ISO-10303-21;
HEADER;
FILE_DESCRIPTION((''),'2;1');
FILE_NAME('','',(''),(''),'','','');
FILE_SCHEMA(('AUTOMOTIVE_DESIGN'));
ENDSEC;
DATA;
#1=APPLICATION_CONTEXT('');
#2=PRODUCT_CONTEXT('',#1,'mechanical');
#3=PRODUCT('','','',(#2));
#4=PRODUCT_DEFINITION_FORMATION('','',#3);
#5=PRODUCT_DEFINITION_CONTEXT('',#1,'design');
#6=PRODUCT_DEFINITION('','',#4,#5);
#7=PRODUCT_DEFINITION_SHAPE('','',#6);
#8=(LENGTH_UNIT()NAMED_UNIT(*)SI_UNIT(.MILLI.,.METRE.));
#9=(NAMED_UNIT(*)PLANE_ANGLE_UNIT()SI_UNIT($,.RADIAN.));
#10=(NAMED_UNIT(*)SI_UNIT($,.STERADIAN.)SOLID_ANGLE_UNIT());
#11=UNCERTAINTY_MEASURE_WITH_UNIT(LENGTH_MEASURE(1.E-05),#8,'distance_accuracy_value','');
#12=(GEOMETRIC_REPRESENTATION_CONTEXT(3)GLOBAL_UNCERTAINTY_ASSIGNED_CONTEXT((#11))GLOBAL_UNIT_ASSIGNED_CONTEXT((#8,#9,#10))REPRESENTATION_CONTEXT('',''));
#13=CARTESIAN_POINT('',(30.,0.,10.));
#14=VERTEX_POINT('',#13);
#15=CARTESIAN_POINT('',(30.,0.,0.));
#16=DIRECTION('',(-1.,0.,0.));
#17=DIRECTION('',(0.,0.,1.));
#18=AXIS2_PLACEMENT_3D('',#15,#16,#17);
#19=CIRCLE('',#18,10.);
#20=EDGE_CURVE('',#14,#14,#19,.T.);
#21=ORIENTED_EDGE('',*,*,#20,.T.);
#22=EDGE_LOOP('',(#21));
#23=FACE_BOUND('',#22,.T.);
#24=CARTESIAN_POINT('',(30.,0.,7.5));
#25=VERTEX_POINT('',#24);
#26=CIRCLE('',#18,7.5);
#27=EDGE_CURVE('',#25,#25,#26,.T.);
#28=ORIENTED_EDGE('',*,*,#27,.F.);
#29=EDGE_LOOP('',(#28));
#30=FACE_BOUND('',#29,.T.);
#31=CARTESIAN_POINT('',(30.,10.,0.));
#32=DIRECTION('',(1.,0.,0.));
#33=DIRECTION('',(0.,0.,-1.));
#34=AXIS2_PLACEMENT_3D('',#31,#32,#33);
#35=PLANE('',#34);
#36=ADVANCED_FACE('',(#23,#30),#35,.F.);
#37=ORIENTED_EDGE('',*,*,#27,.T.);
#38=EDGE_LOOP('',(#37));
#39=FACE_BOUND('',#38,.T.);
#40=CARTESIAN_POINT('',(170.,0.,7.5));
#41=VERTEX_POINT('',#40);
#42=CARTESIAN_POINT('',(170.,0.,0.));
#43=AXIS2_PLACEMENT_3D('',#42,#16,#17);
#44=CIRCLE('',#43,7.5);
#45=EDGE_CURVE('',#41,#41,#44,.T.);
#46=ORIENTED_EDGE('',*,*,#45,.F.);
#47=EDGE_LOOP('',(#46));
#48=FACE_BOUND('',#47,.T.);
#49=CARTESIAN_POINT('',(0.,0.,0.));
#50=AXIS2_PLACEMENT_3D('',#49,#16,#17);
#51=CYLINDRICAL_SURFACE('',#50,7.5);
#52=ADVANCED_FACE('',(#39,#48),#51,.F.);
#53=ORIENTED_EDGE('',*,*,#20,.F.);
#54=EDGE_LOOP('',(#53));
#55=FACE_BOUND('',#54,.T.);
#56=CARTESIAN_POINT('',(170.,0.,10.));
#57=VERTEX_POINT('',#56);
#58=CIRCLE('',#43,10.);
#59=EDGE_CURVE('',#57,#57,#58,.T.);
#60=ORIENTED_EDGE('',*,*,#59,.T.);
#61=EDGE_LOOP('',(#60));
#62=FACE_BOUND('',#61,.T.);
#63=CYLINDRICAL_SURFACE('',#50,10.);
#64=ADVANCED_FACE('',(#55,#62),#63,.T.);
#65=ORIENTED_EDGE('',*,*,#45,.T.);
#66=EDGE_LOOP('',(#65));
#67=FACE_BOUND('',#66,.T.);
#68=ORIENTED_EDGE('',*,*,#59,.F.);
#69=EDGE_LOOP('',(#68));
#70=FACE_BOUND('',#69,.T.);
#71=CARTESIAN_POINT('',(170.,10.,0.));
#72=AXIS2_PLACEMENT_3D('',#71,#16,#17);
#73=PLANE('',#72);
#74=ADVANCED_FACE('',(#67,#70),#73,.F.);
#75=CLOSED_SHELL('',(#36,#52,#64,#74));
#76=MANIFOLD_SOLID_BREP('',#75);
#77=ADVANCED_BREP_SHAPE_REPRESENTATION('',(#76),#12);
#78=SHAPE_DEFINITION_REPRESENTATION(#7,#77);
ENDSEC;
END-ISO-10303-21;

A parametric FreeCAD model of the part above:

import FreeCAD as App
import Part
import Sketcher

V = App.Vector
Q = App.Units.Quantity

doc = App.newDocument("Part")
params = doc.addObject("Spreadsheet::Sheet", "Params")
for row, (alias, value) in enumerate([
    ("sketch1_width", "140 mm"),
    ("sketch1_height", "2.5 mm"),
    ("revolution_angle", "360 deg"),
], start=1):
    params.set(f"A{row}", alias)
    params.set(f"B{row}", "=" + value)
    params.setAlias(f"B{row}", alias)

body = doc.addObject("PartDesign::Body", "Body")

# Sketch on XY plane
sketch1 = body.newObject("Sketcher::SketchObject", "Sketch")
sketch1.AttachmentSupport = (doc.getObject("XY_Plane"), [""])
sketch1.MapMode = "FlatFace"
sketch1.addGeometry(Part.LineSegment(V(30, 10, 0), V(30, 7.5, 0)), False)
sketch1.addGeometry(Part.LineSegment(V(30, 7.5, 0), V(170, 7.5, 0)), False)
sketch1.addGeometry(Part.LineSegment(V(170, 7.5, 0), V(170, 10, 0)), False)
sketch1.addGeometry(Part.LineSegment(V(170, 10, 0), V(30, 10, 0)), False)
sketch1.addConstraint(Sketcher.Constraint("Coincident", 0, 2, 1, 1))
sketch1.addConstraint(Sketcher.Constraint("Coincident", 1, 2, 2, 1))
sketch1.addConstraint(Sketcher.Constraint("Coincident", 2, 2, 3, 1))
sketch1.addConstraint(Sketcher.Constraint("Coincident", 3, 2, 0, 1))
sketch1.addConstraint(Sketcher.Constraint("Vertical", 0))
sketch1.addConstraint(Sketcher.Constraint("Horizontal", 1))
sketch1.addConstraint(Sketcher.Constraint("Vertical", 2))
sketch1.addConstraint(Sketcher.Constraint("Horizontal", 3))
sketch1.addConstraint(Sketcher.Constraint("DistanceX", 1, 1, 1, 2, Q("140 mm")))
sketch1.addConstraint(Sketcher.Constraint("DistanceY", 0, 2, 0, 1, Q("2.5 mm")))
sketch1.addConstraint(Sketcher.Constraint("DistanceX", -1, 1, 0, 2, Q("30 mm")))
sketch1.addConstraint(Sketcher.Constraint("DistanceY", -1, 1, 2, 2, Q("10 mm")))
sketch1.setExpression("Constraints[8]", "Params.sketch1_width")
sketch1.setExpression("Constraints[9]", "Params.sketch1_height")
revolution = body.newObject("PartDesign::Revolution", "Revolution")
revolution.Profile = sketch1
revolution.ReferenceAxis = (sketch1, ["H_Axis"])
revolution.setExpression("Angle", "Params.revolution_angle")

doc.recompute()
